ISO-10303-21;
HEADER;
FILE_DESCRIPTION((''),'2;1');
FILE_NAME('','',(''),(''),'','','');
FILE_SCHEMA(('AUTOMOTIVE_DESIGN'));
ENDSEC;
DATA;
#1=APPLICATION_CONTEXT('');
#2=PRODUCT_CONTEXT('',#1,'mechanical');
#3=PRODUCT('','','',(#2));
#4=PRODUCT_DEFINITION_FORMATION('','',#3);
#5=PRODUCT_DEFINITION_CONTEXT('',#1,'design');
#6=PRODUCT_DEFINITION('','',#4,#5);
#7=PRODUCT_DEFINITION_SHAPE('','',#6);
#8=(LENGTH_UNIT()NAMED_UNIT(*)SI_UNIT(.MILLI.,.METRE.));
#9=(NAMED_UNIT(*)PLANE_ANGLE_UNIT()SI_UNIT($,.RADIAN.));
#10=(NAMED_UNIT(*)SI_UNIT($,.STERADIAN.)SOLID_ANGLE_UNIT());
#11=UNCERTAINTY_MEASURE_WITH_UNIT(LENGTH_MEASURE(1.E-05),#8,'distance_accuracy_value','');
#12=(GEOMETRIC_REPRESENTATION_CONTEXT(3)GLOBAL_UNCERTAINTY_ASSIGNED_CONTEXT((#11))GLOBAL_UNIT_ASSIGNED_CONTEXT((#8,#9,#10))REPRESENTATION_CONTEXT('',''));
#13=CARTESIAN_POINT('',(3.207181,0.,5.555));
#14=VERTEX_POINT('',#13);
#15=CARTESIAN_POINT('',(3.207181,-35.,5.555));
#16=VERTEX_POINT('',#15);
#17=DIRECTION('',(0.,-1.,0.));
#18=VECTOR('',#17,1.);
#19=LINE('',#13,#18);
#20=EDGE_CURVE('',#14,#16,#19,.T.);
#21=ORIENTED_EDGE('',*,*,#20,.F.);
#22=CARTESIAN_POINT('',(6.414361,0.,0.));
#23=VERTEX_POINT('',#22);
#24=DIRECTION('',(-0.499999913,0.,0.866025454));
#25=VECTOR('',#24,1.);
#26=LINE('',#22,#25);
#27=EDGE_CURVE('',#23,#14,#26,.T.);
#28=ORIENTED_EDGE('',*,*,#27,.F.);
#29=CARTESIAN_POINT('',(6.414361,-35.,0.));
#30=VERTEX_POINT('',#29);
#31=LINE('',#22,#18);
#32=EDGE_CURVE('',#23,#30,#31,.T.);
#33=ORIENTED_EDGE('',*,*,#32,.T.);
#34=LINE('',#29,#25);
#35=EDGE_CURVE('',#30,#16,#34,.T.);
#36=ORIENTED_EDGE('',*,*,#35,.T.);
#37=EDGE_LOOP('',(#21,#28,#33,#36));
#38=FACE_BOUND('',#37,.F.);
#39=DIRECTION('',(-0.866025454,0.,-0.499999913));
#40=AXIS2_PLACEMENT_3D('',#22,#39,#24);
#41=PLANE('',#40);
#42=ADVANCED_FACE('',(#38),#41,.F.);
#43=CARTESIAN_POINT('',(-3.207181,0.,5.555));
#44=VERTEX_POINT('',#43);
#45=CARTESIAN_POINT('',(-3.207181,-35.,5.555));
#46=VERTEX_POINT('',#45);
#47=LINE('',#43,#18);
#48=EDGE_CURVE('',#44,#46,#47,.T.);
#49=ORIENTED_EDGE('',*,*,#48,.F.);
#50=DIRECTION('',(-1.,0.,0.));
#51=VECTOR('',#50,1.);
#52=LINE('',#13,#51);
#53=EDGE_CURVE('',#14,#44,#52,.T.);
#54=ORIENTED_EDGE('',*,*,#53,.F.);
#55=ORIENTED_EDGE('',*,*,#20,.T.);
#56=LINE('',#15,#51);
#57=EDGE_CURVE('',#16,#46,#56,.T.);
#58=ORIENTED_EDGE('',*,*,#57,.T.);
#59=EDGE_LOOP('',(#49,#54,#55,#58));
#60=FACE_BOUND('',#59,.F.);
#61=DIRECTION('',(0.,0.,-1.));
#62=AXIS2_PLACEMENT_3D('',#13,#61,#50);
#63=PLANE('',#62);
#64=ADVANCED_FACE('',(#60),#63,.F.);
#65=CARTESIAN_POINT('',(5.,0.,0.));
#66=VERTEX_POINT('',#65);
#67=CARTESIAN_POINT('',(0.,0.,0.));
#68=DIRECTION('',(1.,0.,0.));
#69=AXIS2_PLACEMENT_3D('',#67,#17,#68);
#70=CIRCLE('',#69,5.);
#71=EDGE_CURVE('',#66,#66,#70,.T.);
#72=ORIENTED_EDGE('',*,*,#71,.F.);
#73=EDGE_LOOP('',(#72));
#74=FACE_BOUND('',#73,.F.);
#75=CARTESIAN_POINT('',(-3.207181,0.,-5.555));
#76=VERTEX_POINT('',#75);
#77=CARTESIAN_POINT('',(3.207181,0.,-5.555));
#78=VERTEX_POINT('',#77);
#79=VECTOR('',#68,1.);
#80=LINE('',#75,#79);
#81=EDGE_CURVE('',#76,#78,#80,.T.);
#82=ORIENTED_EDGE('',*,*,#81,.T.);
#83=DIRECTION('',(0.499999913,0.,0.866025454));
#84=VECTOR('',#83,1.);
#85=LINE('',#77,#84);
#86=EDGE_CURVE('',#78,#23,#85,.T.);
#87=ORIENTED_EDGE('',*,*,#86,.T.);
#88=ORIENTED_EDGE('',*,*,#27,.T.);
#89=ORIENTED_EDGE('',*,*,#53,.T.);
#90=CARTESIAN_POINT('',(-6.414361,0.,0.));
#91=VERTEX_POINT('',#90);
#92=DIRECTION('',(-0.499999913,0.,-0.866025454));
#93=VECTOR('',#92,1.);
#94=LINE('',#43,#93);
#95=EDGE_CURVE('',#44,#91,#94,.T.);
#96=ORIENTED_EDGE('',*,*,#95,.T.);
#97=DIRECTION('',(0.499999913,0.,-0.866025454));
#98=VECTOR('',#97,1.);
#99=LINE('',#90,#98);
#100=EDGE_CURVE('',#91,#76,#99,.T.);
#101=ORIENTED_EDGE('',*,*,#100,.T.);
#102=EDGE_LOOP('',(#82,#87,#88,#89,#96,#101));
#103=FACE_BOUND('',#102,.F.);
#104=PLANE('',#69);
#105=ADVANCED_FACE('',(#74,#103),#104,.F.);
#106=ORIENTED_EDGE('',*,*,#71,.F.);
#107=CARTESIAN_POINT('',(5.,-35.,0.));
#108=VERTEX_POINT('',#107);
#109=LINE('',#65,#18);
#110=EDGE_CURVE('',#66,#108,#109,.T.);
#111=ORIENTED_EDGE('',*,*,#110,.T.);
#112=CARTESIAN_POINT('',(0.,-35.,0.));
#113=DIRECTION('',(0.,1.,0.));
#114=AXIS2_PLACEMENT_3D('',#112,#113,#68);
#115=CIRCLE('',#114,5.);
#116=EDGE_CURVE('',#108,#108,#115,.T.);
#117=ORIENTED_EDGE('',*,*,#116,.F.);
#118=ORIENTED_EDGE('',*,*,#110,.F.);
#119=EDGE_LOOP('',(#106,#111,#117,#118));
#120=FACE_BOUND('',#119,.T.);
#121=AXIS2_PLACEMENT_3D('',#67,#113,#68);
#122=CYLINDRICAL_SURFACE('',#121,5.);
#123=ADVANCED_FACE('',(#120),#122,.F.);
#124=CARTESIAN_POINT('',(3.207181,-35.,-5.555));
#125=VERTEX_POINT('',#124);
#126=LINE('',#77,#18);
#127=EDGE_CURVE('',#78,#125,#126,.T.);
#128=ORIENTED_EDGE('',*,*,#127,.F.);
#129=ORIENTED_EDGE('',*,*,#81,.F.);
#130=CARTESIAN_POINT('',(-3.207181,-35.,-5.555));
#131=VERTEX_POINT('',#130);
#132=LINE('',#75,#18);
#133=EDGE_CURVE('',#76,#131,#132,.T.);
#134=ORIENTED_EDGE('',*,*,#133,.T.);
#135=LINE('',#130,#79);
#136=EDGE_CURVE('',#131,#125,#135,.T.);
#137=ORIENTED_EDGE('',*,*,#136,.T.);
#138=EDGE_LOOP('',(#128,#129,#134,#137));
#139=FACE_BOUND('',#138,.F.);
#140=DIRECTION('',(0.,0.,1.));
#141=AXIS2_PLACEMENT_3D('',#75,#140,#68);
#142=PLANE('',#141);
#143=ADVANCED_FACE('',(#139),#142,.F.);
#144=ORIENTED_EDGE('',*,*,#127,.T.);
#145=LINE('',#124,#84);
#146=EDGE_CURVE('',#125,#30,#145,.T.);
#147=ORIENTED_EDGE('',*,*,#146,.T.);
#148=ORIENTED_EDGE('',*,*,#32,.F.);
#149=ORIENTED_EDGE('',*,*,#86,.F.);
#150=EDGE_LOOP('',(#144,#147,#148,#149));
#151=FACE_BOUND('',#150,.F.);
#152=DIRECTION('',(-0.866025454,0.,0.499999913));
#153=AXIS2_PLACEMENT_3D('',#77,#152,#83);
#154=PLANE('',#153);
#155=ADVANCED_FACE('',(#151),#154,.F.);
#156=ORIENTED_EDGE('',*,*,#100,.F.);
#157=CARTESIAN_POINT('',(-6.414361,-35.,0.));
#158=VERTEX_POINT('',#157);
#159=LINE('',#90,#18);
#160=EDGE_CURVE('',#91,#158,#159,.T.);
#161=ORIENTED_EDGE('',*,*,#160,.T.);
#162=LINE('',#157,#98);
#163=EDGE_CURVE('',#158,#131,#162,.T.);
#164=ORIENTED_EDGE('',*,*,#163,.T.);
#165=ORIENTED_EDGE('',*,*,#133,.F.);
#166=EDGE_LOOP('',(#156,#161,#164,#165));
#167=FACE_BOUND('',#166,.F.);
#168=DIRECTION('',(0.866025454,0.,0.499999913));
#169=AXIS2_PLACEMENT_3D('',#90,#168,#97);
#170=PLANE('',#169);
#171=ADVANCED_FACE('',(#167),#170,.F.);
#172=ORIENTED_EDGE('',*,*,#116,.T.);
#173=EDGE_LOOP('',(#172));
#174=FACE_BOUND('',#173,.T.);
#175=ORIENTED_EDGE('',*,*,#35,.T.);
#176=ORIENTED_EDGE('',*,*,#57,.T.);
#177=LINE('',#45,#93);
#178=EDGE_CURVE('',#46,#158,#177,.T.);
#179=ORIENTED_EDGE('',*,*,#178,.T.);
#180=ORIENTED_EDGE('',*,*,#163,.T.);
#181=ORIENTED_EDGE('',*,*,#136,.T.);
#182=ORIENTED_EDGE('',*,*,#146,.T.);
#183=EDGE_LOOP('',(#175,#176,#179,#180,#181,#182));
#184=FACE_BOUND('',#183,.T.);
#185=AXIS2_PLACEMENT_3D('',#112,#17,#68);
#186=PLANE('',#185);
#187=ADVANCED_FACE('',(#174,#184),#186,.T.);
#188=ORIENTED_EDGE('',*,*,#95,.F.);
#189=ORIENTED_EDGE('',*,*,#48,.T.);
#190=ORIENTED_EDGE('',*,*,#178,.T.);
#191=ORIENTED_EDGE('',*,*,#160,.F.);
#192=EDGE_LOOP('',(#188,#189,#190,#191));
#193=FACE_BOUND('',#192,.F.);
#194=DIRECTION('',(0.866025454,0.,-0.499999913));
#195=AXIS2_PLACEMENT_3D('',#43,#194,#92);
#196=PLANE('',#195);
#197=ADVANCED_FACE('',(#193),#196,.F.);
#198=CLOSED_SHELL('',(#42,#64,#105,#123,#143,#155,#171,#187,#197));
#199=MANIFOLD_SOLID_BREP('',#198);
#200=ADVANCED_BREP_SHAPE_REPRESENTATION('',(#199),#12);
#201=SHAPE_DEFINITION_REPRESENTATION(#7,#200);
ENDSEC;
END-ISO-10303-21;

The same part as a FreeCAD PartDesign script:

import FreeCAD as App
import Part
import Sketcher

V = App.Vector
Q = App.Units.Quantity

doc = App.newDocument("Part")
body = doc.addObject("PartDesign::Body", "Body")

# Sketch on XZ plane
sketch1 = body.newObject("Sketcher::SketchObject", "Sketch")
sketch1.AttachmentSupport = (doc.getObject("XZ_Plane"), [""])
sketch1.MapMode = "FlatFace"
sketch1.addGeometry([
    Part.LineSegment(V(3, 6, 0), V(-3, 6, 0)),  # 0
    Part.LineSegment(V(-3, 6, 0), V(-6, 0, 0)),  # 1
    Part.LineSegment(V(-6, 0, 0), V(-3, -6, 0)),  # 2
    Part.LineSegment(V(-3, -6, 0), V(3, -6, 0)),  # 3
    Part.LineSegment(V(3, -6, 0), V(6, 0, 0)),  # 4
    Part.LineSegment(V(6, 0, 0), V(3, 6, 0)),  # 5
], False)
sketch1.addConstraint([
    Sketcher.Constraint("Coincident", 0, 2, 1, 1),
    Sketcher.Constraint("Coincident", 1, 2, 2, 1),
    Sketcher.Constraint("Coincident", 2, 2, 3, 1),
    Sketcher.Constraint("Coincident", 3, 2, 4, 1),
    Sketcher.Constraint("Coincident", 4, 2, 5, 1),
    Sketcher.Constraint("Coincident", 5, 2, 0, 1),
    Sketcher.Constraint("Horizontal", 0),
    Sketcher.Constraint("Horizontal", 3),
    Sketcher.Constraint("Symmetric", 0, 2, 3, 2, -1, 1),
    Sketcher.Constraint("Symmetric", 1, 2, 4, 2, -1, 1),
    Sketcher.Constraint("PointOnObject", 1, 2, -1),
    Sketcher.Constraint("Parallel", 2, 5),
    Sketcher.Constraint("Vertical", 0, 2, 2, 2),
    Sketcher.Constraint("Angle", 1, Q("-119.999994 deg")),
    Sketcher.Constraint("DistanceY", 2, 2, 0, 2, 11.11),
    Sketcher.Constraint("DistanceX", 0, 2, 0, 1, 6.414362),
])
pad1 = body.newObject("PartDesign::Pad", "Pad")
pad1.Profile = sketch1
pad1.Length = 35

# Sketch on XZ plane
sketch2 = body.newObject("Sketcher::SketchObject", "Sketch001")
sketch2.AttachmentSupport = (doc.getObject("XZ_Plane"), [""])
sketch2.MapMode = "FlatFace"
sketch2.addGeometry(Part.Circle(V(0, 0, 0), V(0, 0, 1), 5), False)
sketch2.addConstraint([
    Sketcher.Constraint("Coincident", 0, 3, -1, 1),
    Sketcher.Constraint("Diameter", 0, 10.0),
])
pocket1 = body.newObject("PartDesign::Pocket", "Pocket")
pocket1.Profile = sketch2
pocket1.Length = 52.2
pocket1.Reversed = True

doc.recompute()
